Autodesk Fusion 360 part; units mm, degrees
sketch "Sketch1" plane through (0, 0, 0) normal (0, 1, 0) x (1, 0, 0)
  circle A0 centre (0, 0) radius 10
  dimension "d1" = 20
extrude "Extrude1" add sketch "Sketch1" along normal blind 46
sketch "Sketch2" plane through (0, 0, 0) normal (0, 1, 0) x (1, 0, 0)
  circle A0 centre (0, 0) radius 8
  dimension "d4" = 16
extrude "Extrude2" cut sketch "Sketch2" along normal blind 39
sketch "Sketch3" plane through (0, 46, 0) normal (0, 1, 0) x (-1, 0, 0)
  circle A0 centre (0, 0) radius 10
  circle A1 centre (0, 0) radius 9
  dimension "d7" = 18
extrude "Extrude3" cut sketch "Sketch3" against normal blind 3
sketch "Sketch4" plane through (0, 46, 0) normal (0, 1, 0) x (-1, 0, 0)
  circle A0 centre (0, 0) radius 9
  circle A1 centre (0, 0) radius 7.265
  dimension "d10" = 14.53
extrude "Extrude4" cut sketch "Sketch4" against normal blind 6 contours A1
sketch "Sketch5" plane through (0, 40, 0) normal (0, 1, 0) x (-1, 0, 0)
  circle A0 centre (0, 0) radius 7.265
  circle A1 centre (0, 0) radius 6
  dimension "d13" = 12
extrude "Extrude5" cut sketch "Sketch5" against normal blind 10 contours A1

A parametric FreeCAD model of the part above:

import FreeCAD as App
import Part
import Sketcher

V = App.Vector
Q = App.Units.Quantity

doc = App.newDocument("Part")
body = doc.addObject("PartDesign::Body", "Body")

sketch1 = body.newObject("Sketcher::SketchObject", "Sketch")
sketch1.AttachmentSupport = (doc.getObject("XZ_Plane"), [""])
sketch1.MapMode = "FlatFace"
sketch1.addGeometry(Part.Circle(V(0, 0, 0), V(0, 0, 1), 10), False)
sketch1.addConstraint([
    Sketcher.Constraint("Coincident", 0, 3, -1, 1),
    Sketcher.Constraint("Diameter", 0, Q("20 mm")),
])
pad1 = body.newObject("PartDesign::Pad", "Pad")
pad1.Profile = sketch1
pad1.Length = 46
pad1.Reversed = True

sketch2 = body.newObject("Sketcher::SketchObject", "Sketch001")
sketch2.AttachmentSupport = (doc.getObject("XZ_Plane"), [""])
sketch2.MapMode = "FlatFace"
sketch2.addGeometry(Part.Circle(V(0, 0, 0), V(0, 0, 1), 8), False)
sketch2.addConstraint([
    Sketcher.Constraint("Coincident", 0, 3, -1, 1),
    Sketcher.Constraint("Diameter", 0, Q("16 mm")),
])
pocket1 = body.newObject("PartDesign::Pocket", "Pocket")
pocket1.Profile = sketch2
pocket1.Length = 39

sketch3 = body.newObject("Sketcher::SketchObject", "Sketch002")
sketch3.AttachmentSupport = (doc.getObject("XZ_Plane"), [""])
sketch3.MapMode = "FlatFace"
sketch3.AttachmentOffset = App.Placement(V(0, 0, -46), App.Rotation())
sketch3.addGeometry([
    Part.Circle(V(0, 0, 0), V(0, 0, 1), 10),
    Part.Circle(V(0, 0, 0), V(0, 0, 1), 9),
], False)
sketch3.addConstraint([
    Sketcher.Constraint("Coincident", 0, 3, -1, 1),
    Sketcher.Constraint("Coincident", 1, 3, -1, 1),
    Sketcher.Constraint("Diameter", 1, Q("18 mm")),
    Sketcher.Constraint("Diameter", 0, Q("20 mm")),
])
pocket2 = body.newObject("PartDesign::Pocket", "Pocket001")
pocket2.Profile = sketch3
pocket2.Length = 3
pocket2.Reversed = True

sketch4 = body.newObject("Sketcher::SketchObject", "Sketch003")
sketch4.AttachmentSupport = (doc.getObject("XZ_Plane"), [""])
sketch4.MapMode = "FlatFace"
sketch4.AttachmentOffset = App.Placement(V(0, 0, -46), App.Rotation())
sketch4.addGeometry(Part.Circle(V(0, 0, 0), V(0, 0, 1), 7), False)
sketch4.addConstraint([
    Sketcher.Constraint("Coincident", 0, 3, -1, 1),
    Sketcher.Constraint("Diameter", 0, Q("14.53 mm")),
])
pocket3 = body.newObject("PartDesign::Pocket", "Pocket002")
pocket3.Profile = sketch4
pocket3.Length = 6
pocket3.Reversed = True

sketch5 = body.newObject("Sketcher::SketchObject", "Sketch004")
sketch5.AttachmentSupport = (doc.getObject("XZ_Plane"), [""])
sketch5.MapMode = "FlatFace"
sketch5.AttachmentOffset = App.Placement(V(0, 0, -40), App.Rotation())
sketch5.addGeometry(Part.Circle(V(0, 0, 0), V(0, 0, 1), 6), False)
sketch5.addConstraint([
    Sketcher.Constraint("Coincident", 0, 3, -1, 1),
    Sketcher.Constraint("Diameter", 0, Q("12 mm")),
])
pocket4 = body.newObject("PartDesign::Pocket", "Pocket003")
pocket4.Profile = sketch5
pocket4.Length = 10
pocket4.Reversed = True

doc.recompute()
